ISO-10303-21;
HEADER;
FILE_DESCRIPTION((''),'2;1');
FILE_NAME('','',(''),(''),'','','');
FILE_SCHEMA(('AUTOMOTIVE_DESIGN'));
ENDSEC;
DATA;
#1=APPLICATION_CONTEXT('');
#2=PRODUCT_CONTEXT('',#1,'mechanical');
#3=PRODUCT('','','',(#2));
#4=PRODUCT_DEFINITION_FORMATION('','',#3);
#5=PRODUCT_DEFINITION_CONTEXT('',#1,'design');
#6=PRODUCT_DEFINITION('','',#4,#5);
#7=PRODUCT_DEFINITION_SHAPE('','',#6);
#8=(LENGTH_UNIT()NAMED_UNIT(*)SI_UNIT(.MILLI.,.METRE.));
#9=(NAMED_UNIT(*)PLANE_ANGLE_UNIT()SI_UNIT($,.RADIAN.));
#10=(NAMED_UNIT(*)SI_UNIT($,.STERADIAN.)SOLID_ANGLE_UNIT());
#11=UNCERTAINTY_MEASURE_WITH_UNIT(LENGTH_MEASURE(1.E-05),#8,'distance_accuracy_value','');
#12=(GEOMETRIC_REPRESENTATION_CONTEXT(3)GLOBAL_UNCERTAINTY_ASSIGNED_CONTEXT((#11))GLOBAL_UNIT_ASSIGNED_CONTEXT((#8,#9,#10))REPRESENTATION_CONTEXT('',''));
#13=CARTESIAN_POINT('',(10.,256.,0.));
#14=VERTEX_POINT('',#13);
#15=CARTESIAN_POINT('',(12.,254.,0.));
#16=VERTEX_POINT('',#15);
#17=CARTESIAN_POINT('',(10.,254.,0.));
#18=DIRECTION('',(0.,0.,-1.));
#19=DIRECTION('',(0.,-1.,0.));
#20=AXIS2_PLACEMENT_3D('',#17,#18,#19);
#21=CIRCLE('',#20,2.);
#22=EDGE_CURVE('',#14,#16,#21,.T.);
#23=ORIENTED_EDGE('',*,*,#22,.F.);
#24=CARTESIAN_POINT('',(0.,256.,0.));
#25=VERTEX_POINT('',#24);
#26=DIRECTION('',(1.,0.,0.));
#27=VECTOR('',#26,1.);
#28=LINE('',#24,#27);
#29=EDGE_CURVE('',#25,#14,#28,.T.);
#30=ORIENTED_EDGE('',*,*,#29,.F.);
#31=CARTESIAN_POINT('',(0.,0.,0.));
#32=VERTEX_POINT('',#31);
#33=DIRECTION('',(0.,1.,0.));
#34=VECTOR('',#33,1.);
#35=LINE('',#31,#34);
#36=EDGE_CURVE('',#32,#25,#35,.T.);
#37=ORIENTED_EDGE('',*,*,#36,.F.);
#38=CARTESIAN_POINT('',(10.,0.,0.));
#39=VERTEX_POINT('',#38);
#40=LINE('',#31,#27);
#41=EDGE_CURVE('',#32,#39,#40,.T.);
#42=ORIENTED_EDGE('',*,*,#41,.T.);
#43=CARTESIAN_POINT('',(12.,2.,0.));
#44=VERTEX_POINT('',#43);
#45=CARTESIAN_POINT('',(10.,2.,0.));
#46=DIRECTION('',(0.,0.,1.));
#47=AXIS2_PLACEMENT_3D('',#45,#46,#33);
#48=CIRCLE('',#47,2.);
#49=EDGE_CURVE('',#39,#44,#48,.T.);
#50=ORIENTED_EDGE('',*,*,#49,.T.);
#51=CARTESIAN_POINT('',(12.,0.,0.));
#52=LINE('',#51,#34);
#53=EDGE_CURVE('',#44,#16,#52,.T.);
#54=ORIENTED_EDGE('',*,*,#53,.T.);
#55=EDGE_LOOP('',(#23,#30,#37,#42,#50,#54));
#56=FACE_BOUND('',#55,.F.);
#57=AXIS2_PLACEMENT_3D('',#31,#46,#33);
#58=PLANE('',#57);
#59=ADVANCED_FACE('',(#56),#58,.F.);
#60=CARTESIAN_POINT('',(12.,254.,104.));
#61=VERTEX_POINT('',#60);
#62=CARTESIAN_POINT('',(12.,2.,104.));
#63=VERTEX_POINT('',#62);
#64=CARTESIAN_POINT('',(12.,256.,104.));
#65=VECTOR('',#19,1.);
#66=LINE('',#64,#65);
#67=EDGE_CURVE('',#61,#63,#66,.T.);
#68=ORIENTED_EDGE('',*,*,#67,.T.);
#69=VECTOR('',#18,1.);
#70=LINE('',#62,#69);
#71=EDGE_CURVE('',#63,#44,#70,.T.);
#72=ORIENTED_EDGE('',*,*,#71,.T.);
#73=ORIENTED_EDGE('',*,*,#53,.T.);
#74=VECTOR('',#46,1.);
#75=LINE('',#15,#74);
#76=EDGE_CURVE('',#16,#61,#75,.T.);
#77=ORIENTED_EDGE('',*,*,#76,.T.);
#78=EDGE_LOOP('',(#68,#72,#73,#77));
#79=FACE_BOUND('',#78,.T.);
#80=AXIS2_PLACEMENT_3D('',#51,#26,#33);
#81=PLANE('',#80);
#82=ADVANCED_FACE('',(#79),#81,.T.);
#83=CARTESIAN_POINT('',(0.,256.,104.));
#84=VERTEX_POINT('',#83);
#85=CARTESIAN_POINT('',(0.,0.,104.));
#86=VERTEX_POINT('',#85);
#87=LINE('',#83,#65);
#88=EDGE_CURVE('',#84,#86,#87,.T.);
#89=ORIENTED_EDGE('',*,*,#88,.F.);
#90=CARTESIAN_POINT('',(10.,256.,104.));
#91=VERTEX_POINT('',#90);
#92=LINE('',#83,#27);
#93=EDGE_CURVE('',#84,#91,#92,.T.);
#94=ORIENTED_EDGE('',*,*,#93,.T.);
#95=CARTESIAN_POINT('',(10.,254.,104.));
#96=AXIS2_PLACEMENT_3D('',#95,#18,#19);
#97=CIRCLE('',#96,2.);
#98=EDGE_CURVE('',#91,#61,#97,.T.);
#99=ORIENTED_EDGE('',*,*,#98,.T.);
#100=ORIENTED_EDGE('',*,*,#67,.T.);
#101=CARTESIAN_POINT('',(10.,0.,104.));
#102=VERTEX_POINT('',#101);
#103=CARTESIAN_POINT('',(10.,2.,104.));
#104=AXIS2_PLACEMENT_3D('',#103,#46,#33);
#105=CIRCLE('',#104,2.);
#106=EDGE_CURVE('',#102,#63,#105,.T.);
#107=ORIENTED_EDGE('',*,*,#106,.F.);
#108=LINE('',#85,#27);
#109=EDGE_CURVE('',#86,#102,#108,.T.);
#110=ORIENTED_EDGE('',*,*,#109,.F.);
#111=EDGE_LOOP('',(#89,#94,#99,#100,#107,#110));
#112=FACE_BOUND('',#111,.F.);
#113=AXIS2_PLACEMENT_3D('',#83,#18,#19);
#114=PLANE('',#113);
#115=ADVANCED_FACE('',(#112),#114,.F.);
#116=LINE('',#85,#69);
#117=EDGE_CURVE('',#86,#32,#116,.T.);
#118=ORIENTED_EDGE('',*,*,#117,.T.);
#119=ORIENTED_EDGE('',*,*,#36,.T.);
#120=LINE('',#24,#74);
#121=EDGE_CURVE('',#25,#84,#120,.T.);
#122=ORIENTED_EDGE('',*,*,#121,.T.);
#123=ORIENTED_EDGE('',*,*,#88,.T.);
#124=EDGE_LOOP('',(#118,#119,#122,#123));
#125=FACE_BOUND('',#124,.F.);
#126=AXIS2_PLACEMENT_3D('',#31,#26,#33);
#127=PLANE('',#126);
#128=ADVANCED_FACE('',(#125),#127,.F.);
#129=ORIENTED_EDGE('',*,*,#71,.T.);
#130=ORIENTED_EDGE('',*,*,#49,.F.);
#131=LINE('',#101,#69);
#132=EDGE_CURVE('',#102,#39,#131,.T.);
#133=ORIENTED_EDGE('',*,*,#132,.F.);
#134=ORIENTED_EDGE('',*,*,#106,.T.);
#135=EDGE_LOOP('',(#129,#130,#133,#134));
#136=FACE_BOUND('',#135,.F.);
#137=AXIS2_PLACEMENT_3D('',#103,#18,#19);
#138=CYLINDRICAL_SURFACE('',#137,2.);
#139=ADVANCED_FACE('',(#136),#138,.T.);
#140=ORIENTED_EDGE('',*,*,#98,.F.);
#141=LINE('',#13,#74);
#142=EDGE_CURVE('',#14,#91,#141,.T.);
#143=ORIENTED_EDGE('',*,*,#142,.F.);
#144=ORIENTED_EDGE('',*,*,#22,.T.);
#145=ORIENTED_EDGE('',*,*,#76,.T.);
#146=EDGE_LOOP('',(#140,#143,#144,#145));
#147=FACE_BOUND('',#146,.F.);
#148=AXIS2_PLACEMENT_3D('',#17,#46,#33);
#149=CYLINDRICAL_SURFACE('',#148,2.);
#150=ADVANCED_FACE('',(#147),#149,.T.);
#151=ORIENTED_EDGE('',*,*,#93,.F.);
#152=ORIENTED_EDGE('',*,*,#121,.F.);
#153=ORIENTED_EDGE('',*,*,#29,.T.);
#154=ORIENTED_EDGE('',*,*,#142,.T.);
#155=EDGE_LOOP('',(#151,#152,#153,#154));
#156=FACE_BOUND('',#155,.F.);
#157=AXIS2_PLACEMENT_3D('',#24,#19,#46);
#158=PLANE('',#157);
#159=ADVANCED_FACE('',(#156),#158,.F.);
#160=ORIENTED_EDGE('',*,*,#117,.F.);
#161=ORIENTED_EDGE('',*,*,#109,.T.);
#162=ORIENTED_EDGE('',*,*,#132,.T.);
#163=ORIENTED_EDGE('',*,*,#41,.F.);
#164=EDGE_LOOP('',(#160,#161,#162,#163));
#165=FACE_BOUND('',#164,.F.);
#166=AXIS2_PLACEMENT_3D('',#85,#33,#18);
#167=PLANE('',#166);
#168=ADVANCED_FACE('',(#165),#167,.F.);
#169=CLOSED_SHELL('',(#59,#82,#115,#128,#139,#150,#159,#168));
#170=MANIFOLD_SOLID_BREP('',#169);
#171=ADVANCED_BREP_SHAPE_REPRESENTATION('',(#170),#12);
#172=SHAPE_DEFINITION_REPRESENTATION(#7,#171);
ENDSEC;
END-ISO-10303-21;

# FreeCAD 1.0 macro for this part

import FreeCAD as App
import Part
import Sketcher
from FreeCAD import Vector


def edges_at(feature, points):
    """Names of the edges that pass closest to the given points."""
    edges = feature.Shape.Edges
    near = lambda p: min(range(len(edges)), key=lambda i: edges[i].distToShape(Part.Vertex(*p))[0])
    return sorted({f"Edge{near(p) + 1}" for p in points})

doc = App.newDocument("Part")
body = doc.addObject("PartDesign::Body", "Body")

sketch1 = body.newObject("Sketcher::SketchObject", "Sketch")
sketch1.AttachmentSupport = (doc.getObject("YZ_Plane"), [""])
sketch1.MapMode = "FlatFace"
sketch1.addGeometry([
    Part.LineSegment(Vector(0, 104, 0), Vector(0, 0, 0)),
    Part.LineSegment(Vector(0, 0, 0), Vector(256, 0, 0)),
    Part.LineSegment(Vector(256, 0, 0), Vector(256, 104, 0)),
    Part.LineSegment(Vector(256, 104, 0), Vector(0, 104, 0)),
], False)
sketch1.addConstraint([
    Sketcher.Constraint("Coincident", 0, 2, 1, 1),
    Sketcher.Constraint("Coincident", 1, 2, 2, 1),
    Sketcher.Constraint("Coincident", 2, 2, 3, 1),
    Sketcher.Constraint("Coincident", 3, 2, 0, 1),
    Sketcher.Constraint("Vertical", 0),
    Sketcher.Constraint("Horizontal", 1),
    Sketcher.Constraint("Vertical", 2),
    Sketcher.Constraint("Horizontal", 3),
    Sketcher.Constraint("Coincident", 0, 2, -1, 1),
    Sketcher.Constraint("DistanceX", 1, 1, 1, 2, 256.0),
    Sketcher.Constraint("DistanceY", 0, 2, 0, 1, 104.0),
])
pad1 = body.newObject("PartDesign::Pad", "Pad")
pad1.Profile = sketch1
pad1.Length = 12
doc.recompute()

fillet = body.newObject("PartDesign::Fillet", "Fillet")
fillet.Base = (pad1, edges_at(pad1, [(12, 0, 52), (12, 256, 52)]))
fillet.Radius = 2

doc.recompute()
